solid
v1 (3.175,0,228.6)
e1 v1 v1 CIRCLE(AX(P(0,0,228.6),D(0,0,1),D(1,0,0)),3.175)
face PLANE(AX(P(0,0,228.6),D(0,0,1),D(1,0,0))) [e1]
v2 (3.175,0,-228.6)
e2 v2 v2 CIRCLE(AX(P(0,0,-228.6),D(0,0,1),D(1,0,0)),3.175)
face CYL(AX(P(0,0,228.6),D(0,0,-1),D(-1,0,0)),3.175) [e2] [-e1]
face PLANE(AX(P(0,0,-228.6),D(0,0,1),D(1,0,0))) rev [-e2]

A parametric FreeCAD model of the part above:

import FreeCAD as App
import Part
import Sketcher
Q = App.Units.Quantity

doc = App.newDocument("Part")
body = doc.addObject("PartDesign::Body", "Body")

# Sketch on XY plane
sketch1 = body.newObject("Sketcher::SketchObject", "Sketch")
sketch1.AttachmentSupport = (doc.getObject("XY_Plane"), [""])
sketch1.MapMode = "FlatFace"
sketch1.addGeometry(Part.Circle(App.Vector(0, 0, 0), App.Vector(0, 0, 1), 3.2), False)
sketch1.addConstraint([
    Sketcher.Constraint("Coincident", 0, 3, -1, 1),
    Sketcher.Constraint("Diameter", 0, Q("0.25 in")),
])
pad1 = body.newObject("PartDesign::Pad", "Pad")
pad1.Profile = sketch1
pad1.Length = Q("18 in")
pad1.Midplane = True

doc.recompute()
